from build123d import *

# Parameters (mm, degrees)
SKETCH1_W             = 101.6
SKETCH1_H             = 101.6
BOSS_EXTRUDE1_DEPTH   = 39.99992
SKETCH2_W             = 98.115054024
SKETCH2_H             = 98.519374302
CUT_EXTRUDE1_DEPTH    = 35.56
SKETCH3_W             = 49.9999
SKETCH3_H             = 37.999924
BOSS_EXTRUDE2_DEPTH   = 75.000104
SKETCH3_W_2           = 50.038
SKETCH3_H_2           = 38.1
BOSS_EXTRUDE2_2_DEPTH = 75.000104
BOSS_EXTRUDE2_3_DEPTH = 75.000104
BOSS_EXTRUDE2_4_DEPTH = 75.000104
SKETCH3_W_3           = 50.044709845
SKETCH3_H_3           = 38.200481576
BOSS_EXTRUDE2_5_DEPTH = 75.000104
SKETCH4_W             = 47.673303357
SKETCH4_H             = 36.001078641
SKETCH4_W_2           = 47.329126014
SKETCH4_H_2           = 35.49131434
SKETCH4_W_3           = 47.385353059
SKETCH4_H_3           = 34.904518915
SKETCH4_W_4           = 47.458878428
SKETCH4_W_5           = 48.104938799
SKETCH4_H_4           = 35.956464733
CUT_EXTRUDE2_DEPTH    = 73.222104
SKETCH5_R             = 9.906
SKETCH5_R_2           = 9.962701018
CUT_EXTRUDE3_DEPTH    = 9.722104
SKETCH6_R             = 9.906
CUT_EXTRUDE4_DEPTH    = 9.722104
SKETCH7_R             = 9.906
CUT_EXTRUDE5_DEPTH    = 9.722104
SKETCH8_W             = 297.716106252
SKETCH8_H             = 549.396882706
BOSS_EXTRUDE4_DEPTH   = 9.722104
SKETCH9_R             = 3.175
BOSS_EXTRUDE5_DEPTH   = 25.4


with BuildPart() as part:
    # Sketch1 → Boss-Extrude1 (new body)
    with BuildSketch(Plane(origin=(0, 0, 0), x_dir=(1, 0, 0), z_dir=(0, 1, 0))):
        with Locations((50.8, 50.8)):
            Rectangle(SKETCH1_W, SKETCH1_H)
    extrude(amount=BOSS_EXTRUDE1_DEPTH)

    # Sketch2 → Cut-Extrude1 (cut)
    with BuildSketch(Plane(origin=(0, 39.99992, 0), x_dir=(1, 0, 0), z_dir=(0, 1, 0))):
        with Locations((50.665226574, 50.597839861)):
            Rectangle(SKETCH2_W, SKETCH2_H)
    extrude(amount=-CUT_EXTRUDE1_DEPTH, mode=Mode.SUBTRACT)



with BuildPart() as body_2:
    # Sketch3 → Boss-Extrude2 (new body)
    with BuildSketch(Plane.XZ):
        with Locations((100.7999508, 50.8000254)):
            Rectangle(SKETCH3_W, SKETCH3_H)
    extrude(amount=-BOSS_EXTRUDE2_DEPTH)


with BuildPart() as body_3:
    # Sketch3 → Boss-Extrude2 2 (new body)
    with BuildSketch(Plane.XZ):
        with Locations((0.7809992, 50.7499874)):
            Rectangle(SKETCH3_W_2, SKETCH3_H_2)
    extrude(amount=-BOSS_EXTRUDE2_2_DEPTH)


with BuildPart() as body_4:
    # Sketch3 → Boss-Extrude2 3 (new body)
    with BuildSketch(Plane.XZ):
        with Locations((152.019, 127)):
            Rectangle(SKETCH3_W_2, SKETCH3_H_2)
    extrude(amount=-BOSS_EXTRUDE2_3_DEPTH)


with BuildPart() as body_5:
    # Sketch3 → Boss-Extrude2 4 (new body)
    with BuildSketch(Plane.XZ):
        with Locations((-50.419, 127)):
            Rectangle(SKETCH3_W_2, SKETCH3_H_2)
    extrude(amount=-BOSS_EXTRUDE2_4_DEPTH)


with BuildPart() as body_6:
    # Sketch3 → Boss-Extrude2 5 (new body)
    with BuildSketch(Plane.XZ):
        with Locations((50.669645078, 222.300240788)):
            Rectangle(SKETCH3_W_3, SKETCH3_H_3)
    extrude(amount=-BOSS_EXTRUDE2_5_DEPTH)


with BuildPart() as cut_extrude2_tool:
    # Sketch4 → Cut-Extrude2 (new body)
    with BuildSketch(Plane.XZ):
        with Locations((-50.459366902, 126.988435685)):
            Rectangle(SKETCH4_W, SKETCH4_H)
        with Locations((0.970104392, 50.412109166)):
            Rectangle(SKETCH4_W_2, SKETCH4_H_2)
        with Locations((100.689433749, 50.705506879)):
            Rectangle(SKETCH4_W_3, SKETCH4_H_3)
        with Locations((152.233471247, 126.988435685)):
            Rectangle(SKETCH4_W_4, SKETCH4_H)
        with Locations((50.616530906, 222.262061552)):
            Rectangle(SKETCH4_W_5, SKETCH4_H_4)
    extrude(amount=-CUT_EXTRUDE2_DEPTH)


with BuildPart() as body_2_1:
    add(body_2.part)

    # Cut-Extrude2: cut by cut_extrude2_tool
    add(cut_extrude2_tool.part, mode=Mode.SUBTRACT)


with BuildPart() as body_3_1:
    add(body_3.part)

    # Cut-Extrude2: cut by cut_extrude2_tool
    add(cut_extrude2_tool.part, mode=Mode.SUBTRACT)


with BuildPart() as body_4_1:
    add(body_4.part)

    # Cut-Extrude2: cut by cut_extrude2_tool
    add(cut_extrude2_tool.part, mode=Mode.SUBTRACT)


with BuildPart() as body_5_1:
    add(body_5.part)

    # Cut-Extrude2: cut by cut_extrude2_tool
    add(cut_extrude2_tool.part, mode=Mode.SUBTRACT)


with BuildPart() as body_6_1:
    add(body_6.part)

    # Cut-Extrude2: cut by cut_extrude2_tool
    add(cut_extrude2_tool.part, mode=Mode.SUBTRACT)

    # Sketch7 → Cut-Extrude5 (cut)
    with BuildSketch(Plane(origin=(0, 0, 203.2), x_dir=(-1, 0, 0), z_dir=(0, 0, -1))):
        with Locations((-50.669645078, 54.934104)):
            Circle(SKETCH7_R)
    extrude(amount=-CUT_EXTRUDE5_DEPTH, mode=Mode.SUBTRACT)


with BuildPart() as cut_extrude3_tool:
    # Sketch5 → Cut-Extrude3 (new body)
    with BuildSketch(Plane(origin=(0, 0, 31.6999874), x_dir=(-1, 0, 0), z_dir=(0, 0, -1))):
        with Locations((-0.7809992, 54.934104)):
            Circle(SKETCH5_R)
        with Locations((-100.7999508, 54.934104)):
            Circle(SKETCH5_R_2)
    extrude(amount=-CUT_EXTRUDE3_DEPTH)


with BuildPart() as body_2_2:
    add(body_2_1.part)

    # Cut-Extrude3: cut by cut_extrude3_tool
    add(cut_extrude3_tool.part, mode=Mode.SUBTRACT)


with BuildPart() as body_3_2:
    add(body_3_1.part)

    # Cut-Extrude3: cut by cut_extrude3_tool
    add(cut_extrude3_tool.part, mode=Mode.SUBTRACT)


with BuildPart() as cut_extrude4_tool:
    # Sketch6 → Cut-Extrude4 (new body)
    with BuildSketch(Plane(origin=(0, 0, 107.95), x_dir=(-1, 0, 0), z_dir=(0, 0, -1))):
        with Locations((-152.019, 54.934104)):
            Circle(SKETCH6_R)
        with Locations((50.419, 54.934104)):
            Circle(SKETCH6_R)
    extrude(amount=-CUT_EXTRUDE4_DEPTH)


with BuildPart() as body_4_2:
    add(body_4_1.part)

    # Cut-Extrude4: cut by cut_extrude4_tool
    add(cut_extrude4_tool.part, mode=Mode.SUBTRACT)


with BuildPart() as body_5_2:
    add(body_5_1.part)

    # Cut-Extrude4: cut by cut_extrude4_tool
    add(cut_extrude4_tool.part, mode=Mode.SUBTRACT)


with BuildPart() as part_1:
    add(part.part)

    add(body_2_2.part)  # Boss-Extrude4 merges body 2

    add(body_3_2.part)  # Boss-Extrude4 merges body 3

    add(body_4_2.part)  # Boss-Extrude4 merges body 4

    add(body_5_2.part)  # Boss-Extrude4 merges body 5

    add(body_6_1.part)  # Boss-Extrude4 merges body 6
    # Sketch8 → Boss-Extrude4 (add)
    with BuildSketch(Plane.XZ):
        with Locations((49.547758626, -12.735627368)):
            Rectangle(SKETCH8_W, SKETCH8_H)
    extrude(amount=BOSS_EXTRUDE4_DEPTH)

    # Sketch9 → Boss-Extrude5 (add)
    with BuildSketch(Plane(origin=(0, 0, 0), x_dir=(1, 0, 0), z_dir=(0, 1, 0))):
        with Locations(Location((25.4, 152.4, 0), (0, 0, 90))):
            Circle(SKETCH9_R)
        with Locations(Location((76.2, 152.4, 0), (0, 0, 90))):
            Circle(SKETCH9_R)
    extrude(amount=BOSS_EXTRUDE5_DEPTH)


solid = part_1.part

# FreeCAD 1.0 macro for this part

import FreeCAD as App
import Part
import Sketcher
Q = App.Units.Quantity


def add_polygon(sketch, points):
    """Adds a closed chain of lines whose ends are joined by coincident constraints."""
    first, n = sketch.GeometryCount, len(points)
    for a, b in zip(points, points[1:] + points[:1]):
        sketch.addGeometry(Part.LineSegment(App.Vector(*a, 0), App.Vector(*b, 0)), False)
    for i in range(n):
        sketch.addConstraint(Sketcher.Constraint("Coincident", first + i, 2, first + (i + 1) % n, 1))

doc = App.newDocument("Part")
body = doc.addObject("PartDesign::Body", "Body")

sketch1 = doc.addObject("Sketcher::SketchObject", "Sketch")
body.addObject(sketch1)
sketch1.AttachmentSupport = (doc.XZ_Plane, [""])
sketch1.MapMode = "FlatFace"
add_polygon(sketch1, [(0, -102), (0, 0), (102, 0), (102, -102)])
sketch1.addConstraint([
    Sketcher.Constraint("Vertical", 0),
    Sketcher.Constraint("Horizontal", 1),
    Sketcher.Constraint("Vertical", 2),
    Sketcher.Constraint("Horizontal", 3),
    Sketcher.Constraint("Coincident", 0, 2, -1, 1),
    Sketcher.Constraint("Equal", 3, 0),
    Sketcher.Constraint("DistanceX", 1, 1, 1, 2, Q("4 in")),
])
pad1 = doc.addObject("PartDesign::Pad", "Pad")
body.addObject(pad1)
pad1.Profile = sketch1
pad1.Length = Q("1.5748 in")
pad1.Reversed = True

sketch2 = doc.addObject("Sketcher::SketchObject", "Sketch001")
body.addObject(sketch2)
sketch2.AttachmentSupport = (doc.XZ_Plane, [""])
sketch2.MapMode = "FlatFace"
sketch2.AttachmentOffset = App.Placement(App.Vector(0, 0, -1.5748 * 25.4), App.Rotation())
add_polygon(sketch2, [(2, -100), (2, -1), (100, -1), (100, -100)])
sketch2.addConstraint([
    Sketcher.Constraint("Vertical", 0),
    Sketcher.Constraint("Horizontal", 1),
    Sketcher.Constraint("Vertical", 2),
    Sketcher.Constraint("Horizontal", 3),
    Sketcher.Constraint("DistanceX", -1, 1, 0, 2, Q("1.6077 mm")),
    Sketcher.Constraint("DistanceX", 1, 1, 1, 2, Q("98.115054 mm")),
    Sketcher.Constraint("DistanceY", 0, 1, 0, 2, Q("98.519374 mm")),
    Sketcher.Constraint("DistanceY", 0, 2, -1, 1, Q("1.338153 mm")),
])
pocket1 = doc.addObject("PartDesign::Pocket", "Pocket")
body.addObject(pocket1)
pocket1.Profile = sketch2
pocket1.Length = Q("1.4 in")
pocket1.Reversed = True
body2 = doc.addObject("PartDesign::Body", "Body001")

sketch3 = doc.addObject("Sketcher::SketchObject", "Sketch002")
body2.addObject(sketch3)
sketch3.AttachmentSupport = (doc.getObject("XZ_Plane001"), [""])
sketch3.MapMode = "FlatFace"
add_polygon(sketch3, [(76, 70), (76, 32), (126, 32), (126, 70)])
sketch3.addConstraint([
    Sketcher.Constraint("Vertical", 0),
    Sketcher.Constraint("Horizontal", 1),
    Sketcher.Constraint("Vertical", 2),
    Sketcher.Constraint("Horizontal", 3),
    Sketcher.Constraint("DistanceX", 1, 1, 1, 2, Q("1.9685 in")),
    Sketcher.Constraint("DistanceX", -1, 1, 0, 2, Q("75.800001 mm")),
    Sketcher.Constraint("DistanceY", 0, 2, 0, 1, Q("37.999924 mm")),
    Sketcher.Constraint("DistanceY", -1, 1, 0, 2, Q("31.800063 mm")),
])
pad2 = doc.addObject("PartDesign::Pad", "Pad001")
body2.addObject(pad2)
pad2.Profile = sketch3
pad2.Length = 75.000104
pad2.Reversed = True
body3 = doc.addObject("PartDesign::Body", "Body002")

sketch4 = doc.addObject("Sketcher::SketchObject", "Sketch003")
body3.addObject(sketch4)
sketch4.AttachmentSupport = (doc.getObject("XZ_Plane002"), [""])
sketch4.MapMode = "FlatFace"
add_polygon(sketch4, [(-24, 70), (-24, 32), (26, 32), (26, 70)])
sketch4.addConstraint([
    Sketcher.Constraint("Vertical", 0),
    Sketcher.Constraint("Horizontal", 1),
    Sketcher.Constraint("Vertical", 2),
    Sketcher.Constraint("Horizontal", 3),
    Sketcher.Constraint("DistanceY", 0, 2, 0, 1, Q("1.5 in")),
    Sketcher.Constraint("DistanceX", 1, 1, 1, 2, Q("1.97 in")),
    Sketcher.Constraint("DistanceX", 0, 2, -1, 1, Q("24.238001 mm")),
    Sketcher.Constraint("DistanceY", -1, 1, 0, 2, Q("31.699987 mm")),
])
pad3 = doc.addObject("PartDesign::Pad", "Pad002")
body3.addObject(pad3)
pad3.Profile = sketch4
pad3.Length = 75.000104
pad3.Reversed = True
body4 = doc.addObject("PartDesign::Body", "Body003")

sketch5 = doc.addObject("Sketcher::SketchObject", "Sketch004")
body4.addObject(sketch5)
sketch5.AttachmentSupport = (doc.getObject("XZ_Plane003"), [""])
sketch5.MapMode = "FlatFace"
add_polygon(sketch5, [(127, 146), (127, 108), (177, 108), (177, 146)])
sketch5.addConstraint([
    Sketcher.Constraint("Vertical", 0),
    Sketcher.Constraint("Horizontal", 1),
    Sketcher.Constraint("Vertical", 2),
    Sketcher.Constraint("Horizontal", 3),
    Sketcher.Constraint("DistanceY", 0, 2, 0, 1, Q("1.5 in")),
    Sketcher.Constraint("DistanceX", -1, 1, 0, 2, Q("5 in")),
    Sketcher.Constraint("DistanceX", 1, 1, 1, 2, Q("1.97 in")),
    Sketcher.Constraint("DistanceY", -1, 1, 0, 2, Q("4.25 in")),
])
pad4 = doc.addObject("PartDesign::Pad", "Pad003")
body4.addObject(pad4)
pad4.Profile = sketch5
pad4.Length = 75.000104
pad4.Reversed = True
body5 = doc.addObject("PartDesign::Body", "Body004")

sketch6 = doc.addObject("Sketcher::SketchObject", "Sketch005")
body5.addObject(sketch6)
sketch6.AttachmentSupport = (doc.getObject("XZ_Plane004"), [""])
sketch6.MapMode = "FlatFace"
add_polygon(sketch6, [(-75, 146), (-75, 108), (-25, 108), (-25, 146)])
sketch6.addConstraint([
    Sketcher.Constraint("Vertical", 0),
    Sketcher.Constraint("Horizontal", 1),
    Sketcher.Constraint("Vertical", 2),
    Sketcher.Constraint("Horizontal", 3),
    Sketcher.Constraint("DistanceY", 0, 2, 0, 1, Q("1.5 in")),
    Sketcher.Constraint("DistanceX", 1, 2, -1, 1, Q("1 in")),
    Sketcher.Constraint("DistanceX", 1, 1, 1, 2, Q("1.97 in")),
    Sketcher.Constraint("DistanceY", -1, 1, 0, 2, Q("4.25 in")),
])
pad5 = doc.addObject("PartDesign::Pad", "Pad004")
body5.addObject(pad5)
pad5.Profile = sketch6
pad5.Length = 75.000104
pad5.Reversed = True
body6 = doc.addObject("PartDesign::Body", "Body005")

sketch7 = doc.addObject("Sketcher::SketchObject", "Sketch006")
body6.addObject(sketch7)
sketch7.AttachmentSupport = (doc.getObject("XZ_Plane005"), [""])
sketch7.MapMode = "FlatFace"
add_polygon(sketch7, [(26, 241), (26, 203), (76, 203), (76, 241)])
sketch7.addConstraint([
    Sketcher.Constraint("Vertical", 0),
    Sketcher.Constraint("Horizontal", 1),
    Sketcher.Constraint("Vertical", 2),
    Sketcher.Constraint("Horizontal", 3),
    Sketcher.Constraint("DistanceY", -1, 1, 0, 2, Q("8 in")),
    Sketcher.Constraint("DistanceX", -1, 1, 1, 2, Q("2.98 in")),
    Sketcher.Constraint("DistanceX", 1, 1, 1, 2, Q("50.04471 mm")),
    Sketcher.Constraint("DistanceY", 0, 2, 0, 1, Q("38.200482 mm")),
])
pad6 = doc.addObject("PartDesign::Pad", "Pad005")
body6.addObject(pad6)
pad6.Profile = sketch7
pad6.Length = 75.000104
pad6.Reversed = True
body7 = doc.addObject("PartDesign::Body", "Body006")
body7.AllowCompound = True

sketch8 = doc.addObject("Sketcher::SketchObject", "Sketch007")
body7.addObject(sketch8)
sketch8.AttachmentSupport = (doc.getObject("XZ_Plane006"), [""])
sketch8.MapMode = "FlatFace"
add_polygon(sketch8, [(-74, 145), (-74, 109), (-27, 109), (-27, 145)])
add_polygon(sketch8, [(-23, 68), (-23, 33), (25, 33), (25, 68)])
add_polygon(sketch8, [(77, 68), (77, 33), (124, 33), (124, 68)])
add_polygon(sketch8, [(129, 145), (129, 109), (176, 109), (176, 145)])
add_polygon(sketch8, [(27, 240), (27, 204), (75, 204), (75, 240)])
sketch8.addConstraint([
    Sketcher.Constraint("Vertical", 0),
    Sketcher.Constraint("Horizontal", 1),
    Sketcher.Constraint("Vertical", 2),
    Sketcher.Constraint("Horizontal", 3),
    Sketcher.Constraint("Vertical", 4),
    Sketcher.Constraint("Horizontal", 5),
    Sketcher.Constraint("Vertical", 6),
    Sketcher.Constraint("Horizontal", 7),
    Sketcher.Constraint("Vertical", 8),
    Sketcher.Constraint("Horizontal", 9),
    Sketcher.Constraint("Vertical", 10),
    Sketcher.Constraint("Horizontal", 11),
    Sketcher.Constraint("Vertical", 12),
    Sketcher.Constraint("Horizontal", 13),
    Sketcher.Constraint("Vertical", 14),
    Sketcher.Constraint("Horizontal", 15),
    Sketcher.Constraint("Vertical", 16),
    Sketcher.Constraint("Horizontal", 17),
    Sketcher.Constraint("Vertical", 18),
    Sketcher.Constraint("Horizontal", 19),
    Sketcher.Constraint("Horizontal", 7, 2, 10, 2),
    Sketcher.Constraint("Horizontal", 1, 2, 12, 2),
    Sketcher.Constraint("Horizontal", 3, 2, 14, 2),
    Sketcher.Constraint("DistanceX", 13, 1, 13, 2, Q("47.458878 mm")),
    Sketcher.Constraint("DistanceX", 17, 1, 17, 2, Q("48.104939 mm")),
    Sketcher.Constraint("DistanceY", 0, 2, 0, 1, Q("36.001079 mm")),
    Sketcher.Constraint("DistanceY", 8, 2, 8, 1, Q("34.904519 mm")),
    Sketcher.Constraint("DistanceX", -1, 1, 17, 2, Q("74.669 mm")),
    Sketcher.Constraint("DistanceX", 10, 2, 13, 2, Q("51.5808 mm")),
    Sketcher.Constraint("DistanceX", 1, 1, 1, 2, Q("47.673303 mm")),
    Sketcher.Constraint("DistanceX", 5, 1, 5, 2, Q("47.329126 mm")),
    Sketcher.Constraint("DistanceX", 9, 1, 9, 2, Q("47.385353 mm")),
    Sketcher.Constraint("DistanceY", 4, 2, 4, 1, Q("35.491314 mm")),
    Sketcher.Constraint("DistanceY", 16, 2, 16, 1, Q("35.956465 mm")),
    Sketcher.Constraint("DistanceX", 0, 2, -1, 1, Q("74.296019 mm")),
    Sketcher.Constraint("DistanceX", 4, 2, -1, 1, Q("22.694459 mm")),
    Sketcher.Constraint("DistanceY", -1, 1, 4, 2, Q("32.666452 mm")),
    Sketcher.Constraint("DistanceX", -1, 1, 9, 2, Q("124.38211 mm")),
    Sketcher.Constraint("DistanceY", -1, 1, 16, 2, Q("204.283829 mm")),
    Sketcher.Constraint("DistanceY", 6, 2, 1, 2, Q("40.83013 mm")),
])
pad7 = doc.addObject("PartDesign::Pad", "Pad006")
body7.addObject(pad7)
pad7.Profile = sketch8
pad7.Length = 73.222104
pad7.Reversed = True
doc.recompute()

body8 = doc.addObject("PartDesign::Body", "Body007")
body8.BaseFeature = body7
boolean = doc.addObject("PartDesign::Boolean", "Boolean")
body2.addObject(boolean)
boolean.Type = "Cut"
boolean.addObjects([body8])
doc.recompute()

body9 = doc.addObject("PartDesign::Body", "Body008")
body9.BaseFeature = body7
boolean2 = doc.addObject("PartDesign::Boolean", "Boolean001")
body3.addObject(boolean2)
boolean2.Type = "Cut"
boolean2.addObjects([body9])
doc.recompute()

body10 = doc.addObject("PartDesign::Body", "Body009")
body10.BaseFeature = body7
boolean3 = doc.addObject("PartDesign::Boolean", "Boolean002")
body4.addObject(boolean3)
boolean3.Type = "Cut"
boolean3.addObjects([body10])
doc.recompute()

body11 = doc.addObject("PartDesign::Body", "Body010")
body11.BaseFeature = body7
boolean4 = doc.addObject("PartDesign::Boolean", "Boolean003")
body5.addObject(boolean4)
boolean4.Type = "Cut"
boolean4.addObjects([body11])
doc.recompute()

boolean5 = doc.addObject("PartDesign::Boolean", "Boolean004")
body6.addObject(boolean5)
boolean5.Type = "Cut"
boolean5.addObjects([body7])

sketch9 = doc.addObject("Sketcher::SketchObject", "Sketch008")
body6.addObject(sketch9)
sketch9.AttachmentSupport = (doc.getObject("XY_Plane005"), [""])
sketch9.MapMode = "FlatFace"
sketch9.AttachmentOffset = App.Placement(App.Vector(0, 0, 8 * 25.4), App.Rotation())
sketch9.addGeometry(Part.Circle(App.Vector(51, 55, 0), App.Vector(0, 0, 1), 10), False)
sketch9.addConstraint([
    Sketcher.Constraint("Diameter", 0, Q("0.78 in")),
    Sketcher.Constraint("DistanceX", -1, 1, 0, 3, Q("50.669645 mm")),
    Sketcher.Constraint("DistanceY", -1, 1, 0, 3, Q("54.934104 mm")),
])
pocket2 = doc.addObject("PartDesign::Pocket", "Pocket001")
body6.addObject(pocket2)
pocket2.Profile = sketch9
pocket2.Length = 9.722104
pocket2.Reversed = True
body12 = doc.addObject("PartDesign::Body", "Body011")
body12.AllowCompound = True

sketch10 = doc.addObject("Sketcher::SketchObject", "Sketch009")
body12.addObject(sketch10)
sketch10.AttachmentSupport = (doc.getObject("XY_Plane011"), [""])
sketch10.MapMode = "FlatFace"
sketch10.AttachmentOffset = App.Placement(App.Vector(0, 0, 31.699987), App.Rotation())
sketch10.addGeometry([
    Part.Circle(App.Vector(1, 55, 0), App.Vector(0, 0, 1), 10),
    Part.Circle(App.Vector(101, 55, 0), App.Vector(0, 0, 1), 10),
], False)
sketch10.addConstraint([
    Sketcher.Constraint("Horizontal", 0, 3, 1, 3),
    Sketcher.Constraint("Diameter", 0, Q("0.78 in")),
    Sketcher.Constraint("Diameter", 1, Q("19.925402 mm")),
    Sketcher.Constraint("DistanceX", -1, 1, 0, 3, Q("0.780999 mm")),
    Sketcher.Constraint("DistanceX", -1, 1, 1, 3, Q("100.799951 mm")),
    Sketcher.Constraint("DistanceY", -1, 1, 0, 3, Q("54.934104 mm")),
])
pad8 = doc.addObject("PartDesign::Pad", "Pad007")
body12.addObject(pad8)
pad8.Profile = sketch10
pad8.Length = 9.722104
doc.recompute()

body13 = doc.addObject("PartDesign::Body", "Body012")
body13.BaseFeature = body12
boolean6 = doc.addObject("PartDesign::Boolean", "Boolean005")
body2.addObject(boolean6)
boolean6.Type = "Cut"
boolean6.addObjects([body13])
doc.recompute()

boolean7 = doc.addObject("PartDesign::Boolean", "Boolean006")
body3.addObject(boolean7)
boolean7.Type = "Cut"
boolean7.addObjects([body12])
body14 = doc.addObject("PartDesign::Body", "Body013")
body14.AllowCompound = True

sketch11 = doc.addObject("Sketcher::SketchObject", "Sketch010")
body14.addObject(sketch11)
sketch11.AttachmentSupport = (doc.getObject("XY_Plane013"), [""])
sketch11.MapMode = "FlatFace"
sketch11.AttachmentOffset = App.Placement(App.Vector(0, 0, 4.25 * 25.4), App.Rotation())
sketch11.addGeometry([
    Part.Circle(App.Vector(152, 55, 0), App.Vector(0, 0, 1), 10),
    Part.Circle(App.Vector(-50, 55, 0), App.Vector(0, 0, 1), 10),
], False)
sketch11.addConstraint([
    Sketcher.Constraint("Equal", 0, 1),
    Sketcher.Constraint("Horizontal", 0, 3, 1, 3),
    Sketcher.Constraint("Diameter", 0, Q("0.78 in")),
    Sketcher.Constraint("DistanceX", 1, 3, 0, 3, Q("7.97 in")),
    Sketcher.Constraint("DistanceX", -1, 1, 0, 3, Q("5.985 in")),
    Sketcher.Constraint("DistanceY", -1, 1, 0, 3, Q("54.934104 mm")),
])
pad9 = doc.addObject("PartDesign::Pad", "Pad008")
body14.addObject(pad9)
pad9.Profile = sketch11
pad9.Length = 9.722104
doc.recompute()

body15 = doc.addObject("PartDesign::Body", "Body014")
body15.BaseFeature = body14
boolean8 = doc.addObject("PartDesign::Boolean", "Boolean007")
body4.addObject(boolean8)
boolean8.Type = "Cut"
boolean8.addObjects([body15])
doc.recompute()

boolean9 = doc.addObject("PartDesign::Boolean", "Boolean008")
body5.addObject(boolean9)
boolean9.Type = "Cut"
boolean9.addObjects([body14])
body.AllowCompound = True
doc.recompute()

boolean10 = doc.addObject("PartDesign::Boolean", "Boolean009")
body.addObject(boolean10)
boolean10.Type = "Fuse"
boolean10.addObjects([body2])
doc.recompute()

boolean11 = doc.addObject("PartDesign::Boolean", "Boolean010")
body.addObject(boolean11)
boolean11.Type = "Fuse"
boolean11.addObjects([body3])
doc.recompute()

boolean12 = doc.addObject("PartDesign::Boolean", "Boolean011")
body.addObject(boolean12)
boolean12.Type = "Fuse"
boolean12.addObjects([body4])
doc.recompute()

boolean13 = doc.addObject("PartDesign::Boolean", "Boolean012")
body.addObject(boolean13)
boolean13.Type = "Fuse"
boolean13.addObjects([body5])
doc.recompute()

boolean14 = doc.addObject("PartDesign::Boolean", "Boolean013")
body.addObject(boolean14)
boolean14.Type = "Fuse"
boolean14.addObjects([body6])

sketch12 = doc.addObject("Sketcher::SketchObject", "Sketch011")
body.addObject(sketch12)
sketch12.AttachmentSupport = (doc.XZ_Plane, [""])
sketch12.MapMode = "FlatFace"
add_polygon(sketch12, [(-99, 262), (-99, -287), (198, -287), (198, 262)])
sketch12.addConstraint([
    Sketcher.Constraint("Vertical", 0),
    Sketcher.Constraint("Horizontal", 1),
    Sketcher.Constraint("Vertical", 2),
    Sketcher.Constraint("Horizontal", 3),
    Sketcher.Constraint("DistanceX", 1, 1, 1, 2, Q("297.716106 mm")),
    Sketcher.Constraint("DistanceY", 0, 2, 0, 1, Q("549.396883 mm")),
    Sketcher.Constraint("DistanceY", 0, 2, -1, 1, Q("287.434069 mm")),
    Sketcher.Constraint("DistanceX", -1, 1, 1, 2, Q("198.405812 mm")),
])
pad10 = doc.addObject("PartDesign::Pad", "Pad009")
body.addObject(pad10)
pad10.Profile = sketch12
pad10.Length = 9.722104

sketch13 = doc.addObject("Sketcher::SketchObject", "Sketch012")
body.addObject(sketch13)
sketch13.AttachmentSupport = (doc.XZ_Plane, [""])
sketch13.MapMode = "FlatFace"
sketch13.addGeometry([
    Part.Circle(App.Vector(25.4, -152.4, 0), App.Vector(0, 0, 1), 3.2),
    Part.Circle(App.Vector(76.2, -152.4, 0), App.Vector(0, 0, 1), 3.2),
], False)
sketch13.addConstraint([
    Sketcher.Constraint("Equal", 0, 1),
    Sketcher.Constraint("Horizontal", 0, 3, 1, 3),
    Sketcher.Constraint("Diameter", 0, Q("0.25 in")),
    Sketcher.Constraint("DistanceX", -1, 1, 0, 3, Q("1 in")),
    Sketcher.Constraint("DistanceY", 0, 3, -1, 1, Q("6 in")),
    Sketcher.Constraint("DistanceX", -1, 1, 1, 3, Q("3 in")),
])
pad11 = doc.addObject("PartDesign::Pad", "Pad010")
body.addObject(pad11)
pad11.Profile = sketch13
pad11.Length = Q("1 in")
pad11.Reversed = True

doc.recompute()
